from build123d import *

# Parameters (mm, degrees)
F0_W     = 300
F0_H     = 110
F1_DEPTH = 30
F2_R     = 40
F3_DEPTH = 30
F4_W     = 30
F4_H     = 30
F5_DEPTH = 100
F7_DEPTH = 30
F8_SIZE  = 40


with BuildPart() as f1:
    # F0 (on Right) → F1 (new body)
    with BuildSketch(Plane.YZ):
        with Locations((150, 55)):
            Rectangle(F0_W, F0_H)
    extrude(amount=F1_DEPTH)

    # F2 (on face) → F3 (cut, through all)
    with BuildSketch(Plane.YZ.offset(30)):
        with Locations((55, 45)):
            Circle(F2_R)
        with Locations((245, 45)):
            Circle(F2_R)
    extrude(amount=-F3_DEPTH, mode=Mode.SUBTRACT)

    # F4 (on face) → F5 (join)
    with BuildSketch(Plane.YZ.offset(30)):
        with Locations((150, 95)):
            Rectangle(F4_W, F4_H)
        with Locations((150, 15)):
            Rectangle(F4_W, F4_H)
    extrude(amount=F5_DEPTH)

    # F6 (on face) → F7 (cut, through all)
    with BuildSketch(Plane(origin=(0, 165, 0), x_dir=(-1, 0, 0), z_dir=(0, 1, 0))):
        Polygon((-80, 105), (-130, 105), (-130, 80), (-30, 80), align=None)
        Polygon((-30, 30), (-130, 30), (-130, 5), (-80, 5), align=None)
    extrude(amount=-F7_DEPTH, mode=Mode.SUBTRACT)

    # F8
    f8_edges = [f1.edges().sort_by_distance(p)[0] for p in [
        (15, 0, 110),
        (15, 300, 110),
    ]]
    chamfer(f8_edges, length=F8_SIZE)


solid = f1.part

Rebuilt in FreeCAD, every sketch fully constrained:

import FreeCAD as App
import Part
import Sketcher
from FreeCAD import Vector
Q = App.Units.Quantity


def edges_at(feature, points):
    """Names of the edges that pass closest to the given points."""
    edges = feature.Shape.Edges
    near = lambda p: min(range(len(edges)), key=lambda i: edges[i].distToShape(Part.Vertex(*p))[0])
    return sorted({f"Edge{near(p) + 1}" for p in points})

doc = App.newDocument("Part")
body = doc.addObject("PartDesign::Body", "Body")

sketch1 = body.newObject("Sketcher::SketchObject", "Sketch")
sketch1.AttachmentSupport = (doc.getObject("YZ_Plane"), [""])
sketch1.MapMode = "FlatFace"
sketch1.addGeometry(Part.LineSegment(Vector(0, 110, 0), Vector(0, 0, 0)), False)
sketch1.addGeometry(Part.LineSegment(Vector(0, 0, 0), Vector(300, 0, 0)), False)
sketch1.addGeometry(Part.LineSegment(Vector(300, 0, 0), Vector(300, 110, 0)), False)
sketch1.addGeometry(Part.LineSegment(Vector(300, 110, 0), Vector(0, 110, 0)), False)
sketch1.addConstraint(Sketcher.Constraint("Coincident", 0, 2, 1, 1))
sketch1.addConstraint(Sketcher.Constraint("Coincident", 1, 2, 2, 1))
sketch1.addConstraint(Sketcher.Constraint("Coincident", 2, 2, 3, 1))
sketch1.addConstraint(Sketcher.Constraint("Coincident", 3, 2, 0, 1))
sketch1.addConstraint(Sketcher.Constraint("Vertical", 0))
sketch1.addConstraint(Sketcher.Constraint("Horizontal", 1))
sketch1.addConstraint(Sketcher.Constraint("Vertical", 2))
sketch1.addConstraint(Sketcher.Constraint("Horizontal", 3))
sketch1.addConstraint(Sketcher.Constraint("Coincident", 0, 2, -1, 1))
sketch1.addConstraint(Sketcher.Constraint("DistanceX", 1, 1, 1, 2, Q("300 mm")))
sketch1.addConstraint(Sketcher.Constraint("DistanceY", 0, 2, 0, 1, Q("110 mm")))
pad1 = body.newObject("PartDesign::Pad", "Pad")
pad1.Profile = sketch1
pad1.Length = 30

sketch2 = body.newObject("Sketcher::SketchObject", "Sketch001")
sketch2.AttachmentSupport = (doc.getObject("YZ_Plane"), [""])
sketch2.MapMode = "FlatFace"
sketch2.AttachmentOffset = App.Placement(Vector(0, 0, 30), App.Rotation())
sketch2.addGeometry(Part.Circle(Vector(55, 45, 0), Vector(0, 0, 1), 40), False)
sketch2.addGeometry(Part.Circle(Vector(245, 45, 0), Vector(0, 0, 1), 40), False)
sketch2.addConstraint(Sketcher.Constraint("Equal", 0, 1))
sketch2.addConstraint(Sketcher.Constraint("Horizontal", 0, 3, 1, 3))
sketch2.addConstraint(Sketcher.Constraint("Diameter", 0, Q("80 mm")))
sketch2.addConstraint(Sketcher.Constraint("DistanceX", -1, 1, 0, 3, Q("55 mm")))
sketch2.addConstraint(Sketcher.Constraint("DistanceY", -1, 1, 0, 3, Q("45 mm")))
sketch2.addConstraint(Sketcher.Constraint("DistanceX", -1, 1, 1, 3, Q("245 mm")))
pocket1 = body.newObject("PartDesign::Pocket", "Pocket")
pocket1.Profile = sketch2
pocket1.Type = "ThroughAll"

sketch3 = body.newObject("Sketcher::SketchObject", "Sketch002")
sketch3.AttachmentSupport = (doc.getObject("YZ_Plane"), [""])
sketch3.MapMode = "FlatFace"
sketch3.AttachmentOffset = App.Placement(Vector(0, 0, 30), App.Rotation())
sketch3.addGeometry(Part.LineSegment(Vector(135, 110, 0), Vector(135, 80, 0)), False)
sketch3.addGeometry(Part.LineSegment(Vector(135, 80, 0), Vector(165, 80, 0)), False)
sketch3.addGeometry(Part.LineSegment(Vector(165, 80, 0), Vector(165, 110, 0)), False)
sketch3.addGeometry(Part.LineSegment(Vector(165, 110, 0), Vector(135, 110, 0)), False)
sketch3.addGeometry(Part.LineSegment(Vector(135, 30, 0), Vector(135, 0, 0)), False)
sketch3.addGeometry(Part.LineSegment(Vector(135, 0, 0), Vector(165, 0, 0)), False)
sketch3.addGeometry(Part.LineSegment(Vector(165, 0, 0), Vector(165, 30, 0)), False)
sketch3.addGeometry(Part.LineSegment(Vector(165, 30, 0), Vector(135, 30, 0)), False)
sketch3.addConstraint(Sketcher.Constraint("Coincident", 0, 2, 1, 1))
sketch3.addConstraint(Sketcher.Constraint("Coincident", 1, 2, 2, 1))
sketch3.addConstraint(Sketcher.Constraint("Coincident", 2, 2, 3, 1))
sketch3.addConstraint(Sketcher.Constraint("Coincident", 3, 2, 0, 1))
sketch3.addConstraint(Sketcher.Constraint("Coincident", 4, 2, 5, 1))
sketch3.addConstraint(Sketcher.Constraint("Coincident", 5, 2, 6, 1))
sketch3.addConstraint(Sketcher.Constraint("Coincident", 6, 2, 7, 1))
sketch3.addConstraint(Sketcher.Constraint("Coincident", 7, 2, 4, 1))
sketch3.addConstraint(Sketcher.Constraint("Vertical", 0))
sketch3.addConstraint(Sketcher.Constraint("Horizontal", 1))
sketch3.addConstraint(Sketcher.Constraint("Vertical", 2))
sketch3.addConstraint(Sketcher.Constraint("Horizontal", 3))
sketch3.addConstraint(Sketcher.Constraint("Vertical", 4))
sketch3.addConstraint(Sketcher.Constraint("Horizontal", 5))
sketch3.addConstraint(Sketcher.Constraint("Vertical", 6))
sketch3.addConstraint(Sketcher.Constraint("Horizontal", 7))
sketch3.addConstraint(Sketcher.Constraint("PointOnObject", 4, 2, -1))
sketch3.addConstraint(Sketcher.Constraint("Vertical", 3, 2, 4, 2))
sketch3.addConstraint(Sketcher.Constraint("Vertical", 2, 2, 5, 2))
sketch3.addConstraint(Sketcher.Constraint("Equal", 7, 0))
sketch3.addConstraint(Sketcher.Constraint("Equal", 2, 4))
sketch3.addConstraint(Sketcher.Constraint("DistanceX", 1, 1, 1, 2, Q("30 mm")))
sketch3.addConstraint(Sketcher.Constraint("DistanceX", -1, 1, 0, 2, Q("135 mm")))
sketch3.addConstraint(Sketcher.Constraint("DistanceY", -1, 1, 0, 2, Q("80 mm")))
pad2 = body.newObject("PartDesign::Pad", "Pad001")
pad2.Profile = sketch3
pad2.Length = 100

sketch4 = body.newObject("Sketcher::SketchObject", "Sketch003")
sketch4.AttachmentSupport = (doc.getObject("XZ_Plane"), [""])
sketch4.MapMode = "FlatFace"
sketch4.AttachmentOffset = App.Placement(Vector(0, 0, -165), App.Rotation())
sketch4.addGeometry(Part.LineSegment(Vector(80, 105, 0), Vector(130, 105, 0)), False)
sketch4.addGeometry(Part.LineSegment(Vector(130, 105, 0), Vector(130, 80, 0)), False)
sketch4.addGeometry(Part.LineSegment(Vector(130, 80, 0), Vector(30, 80, 0)), False)
sketch4.addGeometry(Part.LineSegment(Vector(30, 80, 0), Vector(80, 105, 0)), False)
sketch4.addGeometry(Part.LineSegment(Vector(30, 30, 0), Vector(130, 30, 0)), False)
sketch4.addGeometry(Part.LineSegment(Vector(130, 30, 0), Vector(130, 5, 0)), False)
sketch4.addGeometry(Part.LineSegment(Vector(130, 5, 0), Vector(80, 5, 0)), False)
sketch4.addGeometry(Part.LineSegment(Vector(80, 5, 0), Vector(30, 30, 0)), False)
sketch4.addConstraint(Sketcher.Constraint("Coincident", 0, 2, 1, 1))
sketch4.addConstraint(Sketcher.Constraint("Coincident", 1, 2, 2, 1))
sketch4.addConstraint(Sketcher.Constraint("Coincident", 2, 2, 3, 1))
sketch4.addConstraint(Sketcher.Constraint("Coincident", 3, 2, 0, 1))
sketch4.addConstraint(Sketcher.Constraint("Coincident", 4, 2, 5, 1))
sketch4.addConstraint(Sketcher.Constraint("Coincident", 5, 2, 6, 1))
sketch4.addConstraint(Sketcher.Constraint("Coincident", 6, 2, 7, 1))
sketch4.addConstraint(Sketcher.Constraint("Coincident", 7, 2, 4, 1))
sketch4.addConstraint(Sketcher.Constraint("Horizontal", 0))
sketch4.addConstraint(Sketcher.Constraint("Vertical", 1))
sketch4.addConstraint(Sketcher.Constraint("Horizontal", 2))
sketch4.addConstraint(Sketcher.Constraint("Horizontal", 4))
sketch4.addConstraint(Sketcher.Constraint("Vertical", 5))
sketch4.addConstraint(Sketcher.Constraint("Horizontal", 6))
sketch4.addConstraint(Sketcher.Constraint("Vertical", 1, 2, 4, 2))
sketch4.addConstraint(Sketcher.Constraint("Vertical", 3, 2, 6, 2))
sketch4.addConstraint(Sketcher.Constraint("Vertical", 2, 2, 7, 2))
sketch4.addConstraint(Sketcher.Constraint("Equal", 1, 5))
sketch4.addConstraint(Sketcher.Constraint("DistanceX", 0, 1, 0, 2, Q("50 mm")))
sketch4.addConstraint(Sketcher.Constraint("DistanceX", 2, 2, 2, 1, Q("100 mm")))
sketch4.addConstraint(Sketcher.Constraint("DistanceY", 1, 2, 1, 1, Q("25 mm")))
sketch4.addConstraint(Sketcher.Constraint("DistanceX", -1, 1, 0, 2, Q("130 mm")))
sketch4.addConstraint(Sketcher.Constraint("DistanceY", -1, 1, 0, 2, Q("105 mm")))
sketch4.addConstraint(Sketcher.Constraint("DistanceY", -1, 1, 4, 2, Q("30 mm")))
pocket2 = body.newObject("PartDesign::Pocket", "Pocket001")
pocket2.Profile = sketch4
pocket2.Type = "ThroughAll"
pocket2.Reversed = True
doc.recompute()

chamfer = body.newObject("PartDesign::Chamfer", "Chamfer")
chamfer.Base = (pocket2, edges_at(pocket2, [(15, 0, 110), (15, 300, 110)]))
chamfer.Size = 40

doc.recompute()
